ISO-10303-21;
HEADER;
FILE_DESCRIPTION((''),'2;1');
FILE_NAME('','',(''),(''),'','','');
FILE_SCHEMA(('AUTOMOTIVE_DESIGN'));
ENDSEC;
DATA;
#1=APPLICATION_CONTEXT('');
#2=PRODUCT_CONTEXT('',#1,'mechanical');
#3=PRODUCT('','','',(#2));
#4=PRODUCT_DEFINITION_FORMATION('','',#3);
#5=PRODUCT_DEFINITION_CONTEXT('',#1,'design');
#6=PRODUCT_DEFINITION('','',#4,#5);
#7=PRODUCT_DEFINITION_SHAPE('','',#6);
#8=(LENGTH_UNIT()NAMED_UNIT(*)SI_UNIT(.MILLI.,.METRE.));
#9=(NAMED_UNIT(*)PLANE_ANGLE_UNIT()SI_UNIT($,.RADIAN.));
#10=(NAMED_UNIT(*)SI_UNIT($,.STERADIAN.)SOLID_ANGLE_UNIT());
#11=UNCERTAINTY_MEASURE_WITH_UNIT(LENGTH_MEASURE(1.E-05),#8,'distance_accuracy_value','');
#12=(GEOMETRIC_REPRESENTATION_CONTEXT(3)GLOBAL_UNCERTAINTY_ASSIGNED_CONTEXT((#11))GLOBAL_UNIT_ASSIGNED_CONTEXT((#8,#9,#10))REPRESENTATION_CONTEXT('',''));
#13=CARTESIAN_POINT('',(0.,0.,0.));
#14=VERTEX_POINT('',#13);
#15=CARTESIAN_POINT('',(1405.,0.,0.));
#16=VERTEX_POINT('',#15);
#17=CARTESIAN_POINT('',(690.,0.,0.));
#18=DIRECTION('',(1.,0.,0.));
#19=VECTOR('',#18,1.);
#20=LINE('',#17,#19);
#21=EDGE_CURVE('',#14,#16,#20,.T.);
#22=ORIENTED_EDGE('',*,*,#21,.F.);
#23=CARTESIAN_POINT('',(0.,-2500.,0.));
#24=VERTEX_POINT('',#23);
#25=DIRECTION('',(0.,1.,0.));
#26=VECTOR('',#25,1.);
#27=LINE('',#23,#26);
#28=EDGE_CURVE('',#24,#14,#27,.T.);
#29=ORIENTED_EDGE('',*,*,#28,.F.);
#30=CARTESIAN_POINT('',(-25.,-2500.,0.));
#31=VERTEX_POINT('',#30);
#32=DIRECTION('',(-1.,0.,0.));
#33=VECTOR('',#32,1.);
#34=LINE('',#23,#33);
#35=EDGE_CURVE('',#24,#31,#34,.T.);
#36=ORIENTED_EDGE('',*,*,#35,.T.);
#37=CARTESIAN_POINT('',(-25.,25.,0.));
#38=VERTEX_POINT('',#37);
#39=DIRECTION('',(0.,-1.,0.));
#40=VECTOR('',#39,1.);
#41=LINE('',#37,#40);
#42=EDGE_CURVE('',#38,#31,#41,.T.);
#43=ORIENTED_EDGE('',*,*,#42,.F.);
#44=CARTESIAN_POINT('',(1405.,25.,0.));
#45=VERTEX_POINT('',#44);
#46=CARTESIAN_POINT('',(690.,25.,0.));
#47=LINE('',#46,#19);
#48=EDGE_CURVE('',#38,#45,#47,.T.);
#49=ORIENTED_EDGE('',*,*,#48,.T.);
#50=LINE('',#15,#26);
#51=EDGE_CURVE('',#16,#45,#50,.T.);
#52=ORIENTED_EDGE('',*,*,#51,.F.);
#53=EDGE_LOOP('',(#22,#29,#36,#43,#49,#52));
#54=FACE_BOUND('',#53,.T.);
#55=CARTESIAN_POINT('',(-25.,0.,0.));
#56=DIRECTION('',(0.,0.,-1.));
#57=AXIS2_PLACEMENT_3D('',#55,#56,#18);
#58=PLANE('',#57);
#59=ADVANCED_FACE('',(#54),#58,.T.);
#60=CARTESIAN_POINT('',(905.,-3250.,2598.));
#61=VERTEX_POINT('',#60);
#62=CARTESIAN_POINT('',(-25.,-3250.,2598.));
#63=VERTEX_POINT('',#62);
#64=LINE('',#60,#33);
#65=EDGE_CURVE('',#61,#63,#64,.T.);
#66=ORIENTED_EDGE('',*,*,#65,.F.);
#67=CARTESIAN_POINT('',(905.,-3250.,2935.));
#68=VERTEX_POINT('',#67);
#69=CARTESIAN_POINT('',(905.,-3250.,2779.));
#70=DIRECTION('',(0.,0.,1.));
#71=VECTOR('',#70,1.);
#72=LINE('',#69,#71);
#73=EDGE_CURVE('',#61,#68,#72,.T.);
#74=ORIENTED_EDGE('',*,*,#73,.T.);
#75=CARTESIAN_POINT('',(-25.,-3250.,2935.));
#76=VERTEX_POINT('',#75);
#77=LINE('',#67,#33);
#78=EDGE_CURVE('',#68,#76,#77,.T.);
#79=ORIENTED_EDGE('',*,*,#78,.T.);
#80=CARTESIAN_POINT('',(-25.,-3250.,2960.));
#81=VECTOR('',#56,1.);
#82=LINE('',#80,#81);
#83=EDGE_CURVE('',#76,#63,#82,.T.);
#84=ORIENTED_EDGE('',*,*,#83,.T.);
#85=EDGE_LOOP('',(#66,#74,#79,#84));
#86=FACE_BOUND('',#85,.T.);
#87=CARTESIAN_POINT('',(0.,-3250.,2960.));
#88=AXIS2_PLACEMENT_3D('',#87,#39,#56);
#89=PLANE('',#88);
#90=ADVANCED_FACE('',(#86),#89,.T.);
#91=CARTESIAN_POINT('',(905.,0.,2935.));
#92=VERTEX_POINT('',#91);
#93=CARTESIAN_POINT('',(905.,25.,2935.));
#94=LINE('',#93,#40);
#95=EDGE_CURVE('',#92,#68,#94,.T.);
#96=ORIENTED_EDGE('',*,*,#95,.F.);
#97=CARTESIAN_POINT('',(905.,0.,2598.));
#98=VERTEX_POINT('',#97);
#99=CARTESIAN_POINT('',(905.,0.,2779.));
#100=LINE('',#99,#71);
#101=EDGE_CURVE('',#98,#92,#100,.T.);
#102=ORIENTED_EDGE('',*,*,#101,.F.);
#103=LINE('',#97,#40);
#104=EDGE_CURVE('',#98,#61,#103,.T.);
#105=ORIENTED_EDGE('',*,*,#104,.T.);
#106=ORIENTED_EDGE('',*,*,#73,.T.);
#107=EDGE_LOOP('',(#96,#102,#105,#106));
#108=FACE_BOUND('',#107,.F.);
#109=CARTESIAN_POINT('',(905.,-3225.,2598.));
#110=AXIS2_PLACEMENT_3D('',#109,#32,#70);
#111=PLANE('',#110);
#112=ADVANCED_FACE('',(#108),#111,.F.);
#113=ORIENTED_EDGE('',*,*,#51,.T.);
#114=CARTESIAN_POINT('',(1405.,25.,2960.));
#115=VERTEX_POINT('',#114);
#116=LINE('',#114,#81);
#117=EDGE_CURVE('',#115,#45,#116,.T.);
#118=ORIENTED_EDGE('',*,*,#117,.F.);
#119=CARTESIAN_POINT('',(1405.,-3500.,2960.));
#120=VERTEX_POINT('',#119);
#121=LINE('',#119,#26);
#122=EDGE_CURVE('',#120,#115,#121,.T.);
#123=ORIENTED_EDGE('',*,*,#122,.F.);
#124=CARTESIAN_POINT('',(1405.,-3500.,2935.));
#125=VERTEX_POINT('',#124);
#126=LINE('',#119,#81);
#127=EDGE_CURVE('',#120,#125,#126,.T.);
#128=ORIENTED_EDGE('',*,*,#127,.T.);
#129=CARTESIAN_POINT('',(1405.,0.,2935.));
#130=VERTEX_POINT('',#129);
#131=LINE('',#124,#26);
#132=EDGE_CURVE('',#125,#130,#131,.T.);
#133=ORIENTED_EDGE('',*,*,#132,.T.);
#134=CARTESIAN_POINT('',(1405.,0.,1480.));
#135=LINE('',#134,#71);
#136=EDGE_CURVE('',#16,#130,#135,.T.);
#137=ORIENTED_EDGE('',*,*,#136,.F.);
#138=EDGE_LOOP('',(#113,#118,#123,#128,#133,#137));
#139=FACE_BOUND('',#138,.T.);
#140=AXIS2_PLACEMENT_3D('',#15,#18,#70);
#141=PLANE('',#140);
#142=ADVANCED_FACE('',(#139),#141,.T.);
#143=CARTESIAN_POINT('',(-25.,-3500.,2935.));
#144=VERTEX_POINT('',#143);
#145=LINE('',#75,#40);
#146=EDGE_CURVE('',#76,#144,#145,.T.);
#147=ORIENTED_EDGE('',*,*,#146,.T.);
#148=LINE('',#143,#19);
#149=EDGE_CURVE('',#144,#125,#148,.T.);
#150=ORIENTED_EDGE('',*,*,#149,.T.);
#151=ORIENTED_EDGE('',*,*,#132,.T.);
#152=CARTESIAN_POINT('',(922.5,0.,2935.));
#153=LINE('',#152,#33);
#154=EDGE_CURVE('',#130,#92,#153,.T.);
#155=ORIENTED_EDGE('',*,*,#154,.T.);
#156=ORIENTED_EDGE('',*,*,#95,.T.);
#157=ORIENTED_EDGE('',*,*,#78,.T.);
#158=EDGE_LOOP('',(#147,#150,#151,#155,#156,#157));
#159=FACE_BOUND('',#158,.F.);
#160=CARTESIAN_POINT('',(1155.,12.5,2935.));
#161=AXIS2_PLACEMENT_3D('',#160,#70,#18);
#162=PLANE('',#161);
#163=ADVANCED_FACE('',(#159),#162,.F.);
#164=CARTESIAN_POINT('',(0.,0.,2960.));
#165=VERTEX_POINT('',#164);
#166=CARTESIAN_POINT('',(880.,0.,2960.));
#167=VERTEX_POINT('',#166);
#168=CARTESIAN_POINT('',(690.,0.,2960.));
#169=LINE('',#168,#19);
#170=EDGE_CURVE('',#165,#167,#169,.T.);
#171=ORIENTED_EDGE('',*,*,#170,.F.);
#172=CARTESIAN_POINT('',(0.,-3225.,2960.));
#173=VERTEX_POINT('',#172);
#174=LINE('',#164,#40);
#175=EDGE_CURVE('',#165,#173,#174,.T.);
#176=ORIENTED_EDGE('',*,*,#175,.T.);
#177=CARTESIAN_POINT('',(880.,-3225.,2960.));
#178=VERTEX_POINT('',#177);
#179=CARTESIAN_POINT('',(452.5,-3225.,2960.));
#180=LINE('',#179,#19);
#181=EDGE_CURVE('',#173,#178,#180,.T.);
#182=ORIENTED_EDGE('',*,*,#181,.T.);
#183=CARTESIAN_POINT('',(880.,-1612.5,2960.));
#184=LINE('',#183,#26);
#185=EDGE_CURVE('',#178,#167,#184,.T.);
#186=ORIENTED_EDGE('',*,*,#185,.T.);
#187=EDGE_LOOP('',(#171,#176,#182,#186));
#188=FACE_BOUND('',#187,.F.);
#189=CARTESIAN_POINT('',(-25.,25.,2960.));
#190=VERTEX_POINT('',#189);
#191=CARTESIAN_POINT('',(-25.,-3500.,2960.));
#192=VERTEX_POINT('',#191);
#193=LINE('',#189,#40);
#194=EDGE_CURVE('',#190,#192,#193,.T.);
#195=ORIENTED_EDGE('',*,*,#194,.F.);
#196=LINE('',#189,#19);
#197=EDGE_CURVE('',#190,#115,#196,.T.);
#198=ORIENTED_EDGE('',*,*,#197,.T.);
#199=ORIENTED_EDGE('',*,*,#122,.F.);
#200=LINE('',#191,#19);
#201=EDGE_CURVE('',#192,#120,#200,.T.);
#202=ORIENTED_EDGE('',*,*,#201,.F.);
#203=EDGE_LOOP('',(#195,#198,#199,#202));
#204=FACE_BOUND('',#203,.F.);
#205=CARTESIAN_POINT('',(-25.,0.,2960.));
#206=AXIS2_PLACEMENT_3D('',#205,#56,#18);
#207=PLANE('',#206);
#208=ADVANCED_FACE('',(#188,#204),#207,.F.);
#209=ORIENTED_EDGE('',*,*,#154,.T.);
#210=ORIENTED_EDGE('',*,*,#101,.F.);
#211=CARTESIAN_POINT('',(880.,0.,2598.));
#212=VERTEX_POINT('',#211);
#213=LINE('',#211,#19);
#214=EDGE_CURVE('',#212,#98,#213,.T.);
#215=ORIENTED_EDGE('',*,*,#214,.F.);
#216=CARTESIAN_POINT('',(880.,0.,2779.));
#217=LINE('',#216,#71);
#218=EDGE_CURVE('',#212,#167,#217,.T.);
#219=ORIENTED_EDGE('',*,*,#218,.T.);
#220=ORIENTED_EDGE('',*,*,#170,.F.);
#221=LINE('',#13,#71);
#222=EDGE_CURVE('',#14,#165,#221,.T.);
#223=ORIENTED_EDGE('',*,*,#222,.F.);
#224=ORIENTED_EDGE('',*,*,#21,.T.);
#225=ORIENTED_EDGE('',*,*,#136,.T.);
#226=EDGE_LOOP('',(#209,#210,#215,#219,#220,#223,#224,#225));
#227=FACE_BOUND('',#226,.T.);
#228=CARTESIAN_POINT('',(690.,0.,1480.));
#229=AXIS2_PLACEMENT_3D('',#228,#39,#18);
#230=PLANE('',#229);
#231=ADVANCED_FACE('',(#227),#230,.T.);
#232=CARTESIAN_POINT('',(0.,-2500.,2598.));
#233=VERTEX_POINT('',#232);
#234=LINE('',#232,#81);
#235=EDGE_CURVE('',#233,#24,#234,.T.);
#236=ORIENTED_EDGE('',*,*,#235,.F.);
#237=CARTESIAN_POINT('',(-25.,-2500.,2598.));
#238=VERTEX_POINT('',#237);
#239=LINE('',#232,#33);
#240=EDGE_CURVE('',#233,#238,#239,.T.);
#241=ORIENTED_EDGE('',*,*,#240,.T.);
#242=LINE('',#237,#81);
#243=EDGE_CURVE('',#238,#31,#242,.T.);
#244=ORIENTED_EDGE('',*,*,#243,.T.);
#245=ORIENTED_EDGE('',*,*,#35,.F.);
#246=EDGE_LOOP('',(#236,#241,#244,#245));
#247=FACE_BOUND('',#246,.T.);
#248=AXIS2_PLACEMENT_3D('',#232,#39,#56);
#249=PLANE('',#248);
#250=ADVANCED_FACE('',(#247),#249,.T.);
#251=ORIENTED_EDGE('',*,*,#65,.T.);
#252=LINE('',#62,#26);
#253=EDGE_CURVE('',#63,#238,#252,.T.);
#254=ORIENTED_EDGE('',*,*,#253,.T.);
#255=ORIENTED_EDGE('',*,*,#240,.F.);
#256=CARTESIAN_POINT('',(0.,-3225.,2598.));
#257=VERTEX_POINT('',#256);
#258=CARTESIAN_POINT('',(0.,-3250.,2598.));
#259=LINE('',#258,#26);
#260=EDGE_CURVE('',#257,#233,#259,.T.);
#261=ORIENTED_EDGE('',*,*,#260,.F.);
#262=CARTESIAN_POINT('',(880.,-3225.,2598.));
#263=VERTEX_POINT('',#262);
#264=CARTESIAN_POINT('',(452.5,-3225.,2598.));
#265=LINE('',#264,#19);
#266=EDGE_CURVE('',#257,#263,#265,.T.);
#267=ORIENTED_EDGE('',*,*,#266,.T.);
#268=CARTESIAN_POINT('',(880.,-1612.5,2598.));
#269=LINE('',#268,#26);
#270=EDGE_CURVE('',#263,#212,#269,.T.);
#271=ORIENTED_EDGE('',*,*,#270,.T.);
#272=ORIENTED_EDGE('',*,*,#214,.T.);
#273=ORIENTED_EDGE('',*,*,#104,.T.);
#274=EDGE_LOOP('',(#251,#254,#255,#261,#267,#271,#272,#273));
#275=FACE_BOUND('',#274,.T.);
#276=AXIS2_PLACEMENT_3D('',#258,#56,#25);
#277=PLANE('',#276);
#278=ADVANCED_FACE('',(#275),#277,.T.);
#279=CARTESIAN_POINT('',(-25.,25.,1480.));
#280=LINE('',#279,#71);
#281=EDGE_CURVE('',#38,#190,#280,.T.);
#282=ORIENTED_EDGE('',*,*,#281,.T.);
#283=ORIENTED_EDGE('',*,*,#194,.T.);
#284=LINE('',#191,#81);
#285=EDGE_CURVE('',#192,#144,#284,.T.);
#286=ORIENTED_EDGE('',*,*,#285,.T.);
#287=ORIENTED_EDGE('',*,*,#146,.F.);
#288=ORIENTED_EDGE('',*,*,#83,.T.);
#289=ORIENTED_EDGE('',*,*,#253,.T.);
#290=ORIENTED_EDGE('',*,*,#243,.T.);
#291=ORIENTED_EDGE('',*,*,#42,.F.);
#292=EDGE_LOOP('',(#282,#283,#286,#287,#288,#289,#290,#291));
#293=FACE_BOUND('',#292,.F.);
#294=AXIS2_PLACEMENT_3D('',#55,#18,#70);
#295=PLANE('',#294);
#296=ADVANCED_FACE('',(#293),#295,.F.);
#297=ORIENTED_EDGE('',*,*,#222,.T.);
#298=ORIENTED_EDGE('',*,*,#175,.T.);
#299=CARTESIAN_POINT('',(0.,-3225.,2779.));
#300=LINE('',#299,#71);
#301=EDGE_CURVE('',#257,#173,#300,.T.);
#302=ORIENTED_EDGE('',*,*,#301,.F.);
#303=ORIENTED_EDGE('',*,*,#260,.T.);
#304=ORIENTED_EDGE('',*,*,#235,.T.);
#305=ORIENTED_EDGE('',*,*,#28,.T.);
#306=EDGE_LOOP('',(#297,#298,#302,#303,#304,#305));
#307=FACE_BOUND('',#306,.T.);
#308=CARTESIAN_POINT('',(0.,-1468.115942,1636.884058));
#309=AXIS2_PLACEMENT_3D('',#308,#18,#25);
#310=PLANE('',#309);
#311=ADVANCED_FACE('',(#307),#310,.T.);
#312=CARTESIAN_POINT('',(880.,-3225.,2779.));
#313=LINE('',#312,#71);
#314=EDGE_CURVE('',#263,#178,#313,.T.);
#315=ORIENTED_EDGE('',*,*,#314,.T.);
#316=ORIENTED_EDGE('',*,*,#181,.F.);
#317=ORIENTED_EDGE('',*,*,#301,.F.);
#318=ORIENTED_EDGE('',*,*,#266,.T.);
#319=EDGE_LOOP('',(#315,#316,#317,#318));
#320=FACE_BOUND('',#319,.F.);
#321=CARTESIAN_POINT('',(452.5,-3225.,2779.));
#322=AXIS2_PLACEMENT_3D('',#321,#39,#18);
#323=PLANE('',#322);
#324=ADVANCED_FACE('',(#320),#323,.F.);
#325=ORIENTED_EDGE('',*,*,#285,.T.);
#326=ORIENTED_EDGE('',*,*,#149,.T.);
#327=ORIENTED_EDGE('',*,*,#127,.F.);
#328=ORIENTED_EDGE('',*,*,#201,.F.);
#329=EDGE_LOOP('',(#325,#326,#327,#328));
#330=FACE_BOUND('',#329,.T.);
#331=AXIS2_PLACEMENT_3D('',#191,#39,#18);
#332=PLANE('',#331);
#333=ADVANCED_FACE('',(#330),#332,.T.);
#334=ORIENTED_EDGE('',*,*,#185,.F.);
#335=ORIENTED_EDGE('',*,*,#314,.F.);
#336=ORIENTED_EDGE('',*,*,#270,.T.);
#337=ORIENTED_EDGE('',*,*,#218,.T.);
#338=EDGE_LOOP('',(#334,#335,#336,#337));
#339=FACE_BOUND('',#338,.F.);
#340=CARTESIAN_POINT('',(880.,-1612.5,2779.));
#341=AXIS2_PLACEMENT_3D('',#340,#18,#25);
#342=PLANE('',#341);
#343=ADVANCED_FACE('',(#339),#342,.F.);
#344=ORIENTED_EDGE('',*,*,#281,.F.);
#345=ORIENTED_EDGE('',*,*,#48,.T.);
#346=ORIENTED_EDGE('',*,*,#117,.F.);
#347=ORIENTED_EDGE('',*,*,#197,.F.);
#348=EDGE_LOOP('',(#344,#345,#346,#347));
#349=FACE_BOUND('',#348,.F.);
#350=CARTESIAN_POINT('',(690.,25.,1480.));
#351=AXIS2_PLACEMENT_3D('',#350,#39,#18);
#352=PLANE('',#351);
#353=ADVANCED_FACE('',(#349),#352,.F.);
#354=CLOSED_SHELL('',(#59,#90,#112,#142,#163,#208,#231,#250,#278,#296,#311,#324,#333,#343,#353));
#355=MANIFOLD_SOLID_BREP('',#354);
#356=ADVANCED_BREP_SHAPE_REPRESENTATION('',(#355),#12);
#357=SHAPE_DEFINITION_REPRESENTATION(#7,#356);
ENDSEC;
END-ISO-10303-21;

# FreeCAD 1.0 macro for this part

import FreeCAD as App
import Part
import Sketcher


def add_polygon(sketch, points):
    """Adds a closed chain of lines whose ends are joined by coincident constraints."""
    first, n = sketch.GeometryCount, len(points)
    for a, b in zip(points, points[1:] + points[:1]):
        sketch.addGeometry(Part.LineSegment(App.Vector(*a, 0), App.Vector(*b, 0)), False)
    for i in range(n):
        sketch.addConstraint(Sketcher.Constraint("Coincident", first + i, 2, first + (i + 1) % n, 1))

doc = App.newDocument("Part")
body = doc.addObject("PartDesign::Body", "Body")

# Sketch on YZ plane
sketch1 = doc.addObject("Sketcher::SketchObject", "Sketch")
body.addObject(sketch1)
sketch1.AttachmentSupport = (doc.YZ_Plane, [""])
sketch1.MapMode = "FlatFace"
sketch1.AttachmentOffset = App.Placement(App.Vector(0, 0, 880), App.Rotation())
add_polygon(sketch1, [(-3225, 2960), (-3225, 2598), (0, 2598), (0, 2960)])  # lines 0-3
sketch1.addConstraint(Sketcher.Constraint("Vertical", 0))
sketch1.addConstraint(Sketcher.Constraint("Horizontal", 1))
sketch1.addConstraint(Sketcher.Constraint("Vertical", 2))
sketch1.addConstraint(Sketcher.Constraint("Horizontal", 3))
sketch1.addConstraint(Sketcher.Constraint("PointOnObject", 1, 2, -2))
sketch1.addConstraint(Sketcher.Constraint("DistanceX", 1, 1, 1, 2, 3225.0))
sketch1.addConstraint(Sketcher.Constraint("DistanceY", 0, 2, 0, 1, 362.0))
sketch1.addConstraint(Sketcher.Constraint("DistanceY", -1, 1, 0, 2, 2598.0))
pad1 = doc.addObject("PartDesign::Pad", "Pad")
body.addObject(pad1)
pad1.Profile = sketch1
pad1.Length = 25

# Sketch on XZ plane
sketch2 = doc.addObject("Sketcher::SketchObject", "Sketch001")
body.addObject(sketch2)
sketch2.AttachmentSupport = (doc.XZ_Plane, [""])
sketch2.MapMode = "FlatFace"
sketch2.AttachmentOffset = App.Placement(App.Vector(0, 0, 3225), App.Rotation())
add_polygon(sketch2, [(0, 2960), (0, 2598), (905, 2598), (905, 2960)])  # lines 0-3
sketch2.addConstraint(Sketcher.Constraint("Vertical", 0))
sketch2.addConstraint(Sketcher.Constraint("Horizontal", 1))
sketch2.addConstraint(Sketcher.Constraint("Vertical", 2))
sketch2.addConstraint(Sketcher.Constraint("Horizontal", 3))
sketch2.addConstraint(Sketcher.Constraint("PointOnObject", 0, 2, -2))
sketch2.addConstraint(Sketcher.Constraint("DistanceX", 1, 1, 1, 2, 905.0))
sketch2.addConstraint(Sketcher.Constraint("DistanceY", 0, 2, 0, 1, 362.0))
sketch2.addConstraint(Sketcher.Constraint("DistanceY", -1, 1, 0, 2, 2598.0))
pad2 = doc.addObject("PartDesign::Pad", "Pad001")
body.addObject(pad2)
pad2.Profile = sketch2
pad2.Length = 25

# Sketch on YZ plane
sketch3 = doc.addObject("Sketcher::SketchObject", "Sketch002")
body.addObject(sketch3)
sketch3.AttachmentSupport = (doc.YZ_Plane, [""])
sketch3.MapMode = "FlatFace"
add_polygon(sketch3, [(-2500, 0), (0, 0), (0, 2960), (-3250, 2960), (-3250, 2598), (-2500, 2598)])  # lines 0-5
sketch3.addConstraint(Sketcher.Constraint("Horizontal", 0))
sketch3.addConstraint(Sketcher.Constraint("Vertical", 1))
sketch3.addConstraint(Sketcher.Constraint("Horizontal", 2))
sketch3.addConstraint(Sketcher.Constraint("Vertical", 3))
sketch3.addConstraint(Sketcher.Constraint("Horizontal", 4))
sketch3.addConstraint(Sketcher.Constraint("Vertical", 5))
sketch3.addConstraint(Sketcher.Constraint("Coincident", 0, 2, -1, 1))
sketch3.addConstraint(Sketcher.Constraint("DistanceX", 0, 1, 0, 2, 2500.0))
sketch3.addConstraint(Sketcher.Constraint("DistanceX", 2, 2, 2, 1, 3250.0))
sketch3.addConstraint(Sketcher.Constraint("DistanceY", 1, 1, 1, 2, 2960.0))
sketch3.addConstraint(Sketcher.Constraint("DistanceY", 3, 2, 3, 1, 362.0))
pad3 = doc.addObject("PartDesign::Pad", "Pad002")
body.addObject(pad3)
pad3.Profile = sketch3
pad3.Length = 25
pad3.Reversed = True

# Sketch on XZ plane
sketch4 = doc.addObject("Sketcher::SketchObject", "Sketch003")
body.addObject(sketch4)
sketch4.AttachmentSupport = (doc.XZ_Plane, [""])
sketch4.MapMode = "FlatFace"
add_polygon(sketch4, [(-25, 2960), (-25, 0), (1405, 0), (1405, 2960)])  # lines 0-3
sketch4.addConstraint(Sketcher.Constraint("Vertical", 0))
sketch4.addConstraint(Sketcher.Constraint("Horizontal", 1))
sketch4.addConstraint(Sketcher.Constraint("Vertical", 2))
sketch4.addConstraint(Sketcher.Constraint("Horizontal", 3))
sketch4.addConstraint(Sketcher.Constraint("PointOnObject", 0, 2, -1))
sketch4.addConstraint(Sketcher.Constraint("DistanceX", 1, 1, 1, 2, 1430.0))
sketch4.addConstraint(Sketcher.Constraint("DistanceY", 0, 2, 0, 1, 2960.0))
sketch4.addConstraint(Sketcher.Constraint("DistanceX", 0, 2, -1, 1, 25.0))
pad4 = doc.addObject("PartDesign::Pad", "Pad003")
body.addObject(pad4)
pad4.Profile = sketch4
pad4.Length = 25
pad4.Reversed = True

# Sketch on XY plane
sketch5 = doc.addObject("Sketcher::SketchObject", "Sketch004")
body.addObject(sketch5)
sketch5.AttachmentSupport = (doc.XY_Plane, [""])
sketch5.MapMode = "FlatFace"
sketch5.AttachmentOffset = App.Placement(App.Vector(0, 0, 2960), App.Rotation())
add_polygon(sketch5, [(905, 25), (905, -3250), (-25, -3250), (-25, -3500), (1405, -3500), (1405, 25)])  # lines 0-5
sketch5.addConstraint(Sketcher.Constraint("Vertical", 0))
sketch5.addConstraint(Sketcher.Constraint("Horizontal", 1))
sketch5.addConstraint(Sketcher.Constraint("Vertical", 2))
sketch5.addConstraint(Sketcher.Constraint("Horizontal", 3))
sketch5.addConstraint(Sketcher.Constraint("Vertical", 4))
sketch5.addConstraint(Sketcher.Constraint("Horizontal", 5))
sketch5.addConstraint(Sketcher.Constraint("DistanceX", 1, 2, 1, 1, 930.0))
sketch5.addConstraint(Sketcher.Constraint("DistanceX", 3, 1, 3, 2, 1430.0))
sketch5.addConstraint(Sketcher.Constraint("DistanceY", 0, 2, 0, 1, 3275.0))
sketch5.addConstraint(Sketcher.Constraint("DistanceY", 2, 2, 2, 1, 250.0))
sketch5.addConstraint(Sketcher.Constraint("DistanceX", -1, 1, 0, 2, 905.0))
sketch5.addConstraint(Sketcher.Constraint("DistanceY", 0, 2, -1, 1, 3250.0))
pad5 = doc.addObject("PartDesign::Pad", "Pad004")
body.addObject(pad5)
pad5.Profile = sketch5
pad5.Length = 25
pad5.Reversed = True

doc.recompute()
